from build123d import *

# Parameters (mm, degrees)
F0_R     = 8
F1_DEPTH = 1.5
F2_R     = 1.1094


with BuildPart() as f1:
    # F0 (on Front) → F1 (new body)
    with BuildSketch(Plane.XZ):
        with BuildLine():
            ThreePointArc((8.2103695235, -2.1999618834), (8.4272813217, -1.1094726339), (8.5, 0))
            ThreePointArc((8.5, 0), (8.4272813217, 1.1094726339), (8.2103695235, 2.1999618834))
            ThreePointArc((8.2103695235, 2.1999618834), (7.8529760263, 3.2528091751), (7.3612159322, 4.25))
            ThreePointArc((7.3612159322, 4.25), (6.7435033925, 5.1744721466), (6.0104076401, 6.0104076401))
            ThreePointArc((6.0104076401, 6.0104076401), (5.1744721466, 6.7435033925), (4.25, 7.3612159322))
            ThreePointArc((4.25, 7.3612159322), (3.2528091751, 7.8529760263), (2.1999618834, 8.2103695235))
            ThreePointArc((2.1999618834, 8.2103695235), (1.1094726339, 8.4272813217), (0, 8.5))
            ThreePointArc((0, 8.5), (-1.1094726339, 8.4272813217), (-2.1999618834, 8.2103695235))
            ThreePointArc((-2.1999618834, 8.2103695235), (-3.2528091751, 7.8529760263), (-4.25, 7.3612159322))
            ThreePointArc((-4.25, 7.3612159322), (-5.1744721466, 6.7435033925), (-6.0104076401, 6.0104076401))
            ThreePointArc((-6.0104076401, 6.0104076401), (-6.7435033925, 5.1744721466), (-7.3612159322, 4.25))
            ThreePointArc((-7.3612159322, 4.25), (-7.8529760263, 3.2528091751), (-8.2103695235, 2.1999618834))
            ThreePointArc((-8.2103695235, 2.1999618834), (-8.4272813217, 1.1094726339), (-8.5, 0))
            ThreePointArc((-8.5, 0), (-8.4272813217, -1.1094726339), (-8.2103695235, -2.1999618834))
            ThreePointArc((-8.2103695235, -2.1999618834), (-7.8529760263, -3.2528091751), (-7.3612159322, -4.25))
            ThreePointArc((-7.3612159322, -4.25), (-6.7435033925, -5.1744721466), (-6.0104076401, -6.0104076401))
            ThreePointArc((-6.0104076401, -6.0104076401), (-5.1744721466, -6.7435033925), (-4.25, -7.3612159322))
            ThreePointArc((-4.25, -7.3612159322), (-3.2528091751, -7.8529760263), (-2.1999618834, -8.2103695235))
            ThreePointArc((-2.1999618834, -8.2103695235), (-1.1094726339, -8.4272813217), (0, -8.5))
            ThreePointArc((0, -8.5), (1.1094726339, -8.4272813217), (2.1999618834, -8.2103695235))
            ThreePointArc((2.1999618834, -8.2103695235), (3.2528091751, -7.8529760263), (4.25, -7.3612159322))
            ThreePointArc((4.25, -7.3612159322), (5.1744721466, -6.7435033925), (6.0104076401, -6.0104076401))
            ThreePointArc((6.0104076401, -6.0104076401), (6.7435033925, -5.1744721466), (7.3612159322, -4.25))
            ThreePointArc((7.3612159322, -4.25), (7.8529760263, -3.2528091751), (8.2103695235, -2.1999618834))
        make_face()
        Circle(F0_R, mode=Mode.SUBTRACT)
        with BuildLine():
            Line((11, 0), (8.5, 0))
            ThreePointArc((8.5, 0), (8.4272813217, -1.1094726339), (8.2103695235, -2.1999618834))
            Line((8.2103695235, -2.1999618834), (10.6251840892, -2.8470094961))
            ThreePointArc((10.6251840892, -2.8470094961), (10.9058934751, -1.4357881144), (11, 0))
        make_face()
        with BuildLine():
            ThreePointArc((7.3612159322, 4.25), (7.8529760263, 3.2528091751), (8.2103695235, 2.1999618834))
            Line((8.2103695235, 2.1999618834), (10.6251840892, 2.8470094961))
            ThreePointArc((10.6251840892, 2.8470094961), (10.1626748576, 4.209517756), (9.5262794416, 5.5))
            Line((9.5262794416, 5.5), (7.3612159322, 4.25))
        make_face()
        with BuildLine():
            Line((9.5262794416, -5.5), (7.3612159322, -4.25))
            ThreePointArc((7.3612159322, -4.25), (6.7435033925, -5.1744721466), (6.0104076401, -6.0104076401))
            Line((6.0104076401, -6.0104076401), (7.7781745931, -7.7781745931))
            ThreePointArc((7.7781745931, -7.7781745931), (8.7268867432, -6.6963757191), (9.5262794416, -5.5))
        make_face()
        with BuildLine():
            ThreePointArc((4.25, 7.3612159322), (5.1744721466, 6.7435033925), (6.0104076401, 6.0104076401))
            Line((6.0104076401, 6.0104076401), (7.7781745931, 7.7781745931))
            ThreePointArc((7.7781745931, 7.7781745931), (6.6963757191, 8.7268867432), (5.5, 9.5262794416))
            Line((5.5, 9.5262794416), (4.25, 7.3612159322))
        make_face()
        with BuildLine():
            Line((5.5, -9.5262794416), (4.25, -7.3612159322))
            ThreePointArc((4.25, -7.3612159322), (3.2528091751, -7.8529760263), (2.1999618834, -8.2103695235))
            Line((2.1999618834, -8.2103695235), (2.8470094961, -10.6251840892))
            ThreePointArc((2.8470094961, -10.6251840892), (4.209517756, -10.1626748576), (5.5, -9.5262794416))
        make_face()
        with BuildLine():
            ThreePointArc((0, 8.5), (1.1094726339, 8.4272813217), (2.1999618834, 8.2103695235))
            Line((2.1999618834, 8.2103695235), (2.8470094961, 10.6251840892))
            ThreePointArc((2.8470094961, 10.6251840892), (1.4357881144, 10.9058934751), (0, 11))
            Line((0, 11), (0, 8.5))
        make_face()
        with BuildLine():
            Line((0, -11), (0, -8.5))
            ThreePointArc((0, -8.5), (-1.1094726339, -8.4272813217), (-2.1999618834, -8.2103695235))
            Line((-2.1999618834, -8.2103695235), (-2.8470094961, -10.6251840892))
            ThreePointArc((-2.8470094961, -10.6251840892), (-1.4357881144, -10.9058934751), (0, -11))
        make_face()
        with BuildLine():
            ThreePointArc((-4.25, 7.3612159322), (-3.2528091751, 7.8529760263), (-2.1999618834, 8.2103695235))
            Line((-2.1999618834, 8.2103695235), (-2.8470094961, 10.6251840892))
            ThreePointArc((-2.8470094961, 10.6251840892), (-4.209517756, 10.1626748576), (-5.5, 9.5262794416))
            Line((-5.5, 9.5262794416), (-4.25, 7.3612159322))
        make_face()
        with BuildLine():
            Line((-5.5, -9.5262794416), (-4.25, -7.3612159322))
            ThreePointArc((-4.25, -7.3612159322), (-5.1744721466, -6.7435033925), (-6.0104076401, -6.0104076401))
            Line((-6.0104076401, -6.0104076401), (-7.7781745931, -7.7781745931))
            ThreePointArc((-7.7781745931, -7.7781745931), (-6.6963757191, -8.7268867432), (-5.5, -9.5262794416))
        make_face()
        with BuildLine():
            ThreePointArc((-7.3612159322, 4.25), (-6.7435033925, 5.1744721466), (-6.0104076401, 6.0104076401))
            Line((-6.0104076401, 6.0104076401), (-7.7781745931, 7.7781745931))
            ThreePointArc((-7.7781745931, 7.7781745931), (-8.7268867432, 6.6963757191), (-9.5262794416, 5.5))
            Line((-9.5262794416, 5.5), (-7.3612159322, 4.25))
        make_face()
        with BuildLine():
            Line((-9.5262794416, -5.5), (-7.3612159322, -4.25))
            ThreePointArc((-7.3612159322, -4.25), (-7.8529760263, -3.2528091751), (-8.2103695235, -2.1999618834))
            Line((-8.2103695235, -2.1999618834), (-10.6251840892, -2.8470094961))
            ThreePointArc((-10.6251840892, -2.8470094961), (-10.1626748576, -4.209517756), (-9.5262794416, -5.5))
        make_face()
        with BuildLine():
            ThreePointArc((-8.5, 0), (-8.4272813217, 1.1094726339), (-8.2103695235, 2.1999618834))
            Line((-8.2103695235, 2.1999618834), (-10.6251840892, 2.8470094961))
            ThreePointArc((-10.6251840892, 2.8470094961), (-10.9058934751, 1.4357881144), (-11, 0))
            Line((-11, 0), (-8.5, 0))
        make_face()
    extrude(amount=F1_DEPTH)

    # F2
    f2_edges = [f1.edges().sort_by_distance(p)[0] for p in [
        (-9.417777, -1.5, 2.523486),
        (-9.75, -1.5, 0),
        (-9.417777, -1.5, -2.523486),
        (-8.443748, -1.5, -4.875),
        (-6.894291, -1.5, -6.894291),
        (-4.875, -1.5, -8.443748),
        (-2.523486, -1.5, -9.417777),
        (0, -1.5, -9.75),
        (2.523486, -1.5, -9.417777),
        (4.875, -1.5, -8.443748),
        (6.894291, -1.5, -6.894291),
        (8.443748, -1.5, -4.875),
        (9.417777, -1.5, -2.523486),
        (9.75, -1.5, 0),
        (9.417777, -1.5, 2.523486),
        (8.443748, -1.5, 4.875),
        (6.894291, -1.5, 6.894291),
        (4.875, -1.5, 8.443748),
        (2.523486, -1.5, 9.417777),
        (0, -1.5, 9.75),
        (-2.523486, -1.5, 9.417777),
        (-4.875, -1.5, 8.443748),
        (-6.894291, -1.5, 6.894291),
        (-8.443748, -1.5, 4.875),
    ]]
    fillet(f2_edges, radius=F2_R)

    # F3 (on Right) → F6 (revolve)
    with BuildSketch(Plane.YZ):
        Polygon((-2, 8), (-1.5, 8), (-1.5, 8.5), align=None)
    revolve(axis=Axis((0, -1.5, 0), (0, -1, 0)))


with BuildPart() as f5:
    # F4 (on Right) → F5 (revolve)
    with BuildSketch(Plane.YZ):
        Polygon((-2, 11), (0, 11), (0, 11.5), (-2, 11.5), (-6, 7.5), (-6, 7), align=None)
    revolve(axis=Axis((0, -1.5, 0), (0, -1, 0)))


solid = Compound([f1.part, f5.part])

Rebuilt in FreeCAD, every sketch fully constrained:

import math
import FreeCAD as App
import Part
import Sketcher
from FreeCAD import Vector
Q = App.Units.Quantity


def edges_at(feature, points):
    """Names of the edges that pass closest to the given points."""
    edges = feature.Shape.Edges
    near = lambda p: min(range(len(edges)), key=lambda i: edges[i].distToShape(Part.Vertex(*p))[0])
    return sorted({f"Edge{near(p) + 1}" for p in points})


def add_polygon(sketch, points):
    """Adds a closed chain of lines whose ends are joined by coincident constraints."""
    first, n = sketch.GeometryCount, len(points)
    for a, b in zip(points, points[1:] + points[:1]):
        sketch.addGeometry(Part.LineSegment(App.Vector(*a, 0), App.Vector(*b, 0)), False)
    for i in range(n):
        sketch.addConstraint(Sketcher.Constraint("Coincident", first + i, 2, first + (i + 1) % n, 1))

doc = App.newDocument("Part")
body = doc.addObject("PartDesign::Body", "Body")

# Sketch on XZ plane
sketch1 = body.newObject("Sketcher::SketchObject", "Sketch")
sketch1.AttachmentSupport = (doc.getObject("XZ_Plane"), [""])
sketch1.MapMode = "FlatFace"
sketch1.addGeometry([
    Part.ArcOfCircle(Part.Circle(Vector(0, 0, 0), Vector(0, 0, 1), 8.5), math.radians(-30), math.radians(-15)),  # 0
    Part.LineSegment(Vector(8.21037, -2.199962, 0), Vector(10.625184, -2.847009, 0)),  # 1
    Part.ArcOfCircle(Part.Circle(Vector(0, 0, 0), Vector(0, 0, 1), 11), math.radians(-15), math.radians(0)),  # 2
    Part.LineSegment(Vector(11, 0, 0), Vector(8.5, 0, 0)),  # 3
    Part.ArcOfCircle(Part.Circle(Vector(0, 0, 0), Vector(0, 0, 1), 8.5), math.radians(0), math.radians(15)),  # 4
    Part.LineSegment(Vector(8.21037, 2.199962, 0), Vector(10.625184, 2.847009, 0)),  # 5
    Part.ArcOfCircle(Part.Circle(Vector(0, 0, 0), Vector(0, 0, 1), 11), math.radians(15), math.radians(30)),  # 6
    Part.LineSegment(Vector(9.526279, 5.5, 0), Vector(7.361216, 4.25, 0)),  # 7
    Part.ArcOfCircle(Part.Circle(Vector(0, 0, 0), Vector(0, 0, 1), 8.5), math.radians(30), math.radians(45)),  # 8
    Part.LineSegment(Vector(6.010408, 6.010408, 0), Vector(7.778175, 7.778175, 0)),  # 9
    Part.ArcOfCircle(Part.Circle(Vector(0, 0, 0), Vector(0, 0, 1), 11), math.radians(45), math.radians(60)),  # 10
    Part.LineSegment(Vector(5.5, 9.526279, 0), Vector(4.25, 7.361216, 0)),  # 11
    Part.ArcOfCircle(Part.Circle(Vector(0, 0, 0), Vector(0, 0, 1), 8.5), math.radians(60), math.radians(75)),  # 12
    Part.LineSegment(Vector(2.199962, 8.21037, 0), Vector(2.847009, 10.625184, 0)),  # 13
    Part.ArcOfCircle(Part.Circle(Vector(0, 0, 0), Vector(0, 0, 1), 11), math.radians(75), math.radians(90)),  # 14
    Part.LineSegment(Vector(0, 11, 0), Vector(0, 8.5, 0)),  # 15
    Part.ArcOfCircle(Part.Circle(Vector(0, 0, 0), Vector(0, 0, 1), 8.5), math.radians(90), math.radians(105)),  # 16
    Part.LineSegment(Vector(-2.199962, 8.21037, 0), Vector(-2.847009, 10.625184, 0)),  # 17
    Part.ArcOfCircle(Part.Circle(Vector(0, 0, 0), Vector(0, 0, 1), 11), math.radians(105), math.radians(120)),  # 18
    Part.LineSegment(Vector(-5.5, 9.526279, 0), Vector(-4.25, 7.361216, 0)),  # 19
    Part.ArcOfCircle(Part.Circle(Vector(0, 0, 0), Vector(0, 0, 1), 8.5), math.radians(120), math.radians(135)),  # 20
    Part.LineSegment(Vector(-6.010408, 6.010408, 0), Vector(-7.778175, 7.778175, 0)),  # 21
    Part.ArcOfCircle(Part.Circle(Vector(0, 0, 0), Vector(0, 0, 1), 11), math.radians(135), math.radians(150)),  # 22
    Part.LineSegment(Vector(-9.526279, 5.5, 0), Vector(-7.361216, 4.25, 0)),  # 23
    Part.ArcOfCircle(Part.Circle(Vector(0, 0, 0), Vector(0, 0, 1), 8.5), math.radians(150), math.radians(165)),  # 24
    Part.LineSegment(Vector(-8.21037, 2.199962, 0), Vector(-10.625184, 2.847009, 0)),  # 25
    Part.ArcOfCircle(Part.Circle(Vector(0, 0, 0), Vector(0, 0, 1), 11), math.radians(165), math.radians(180)),  # 26
    Part.LineSegment(Vector(-11, 0, 0), Vector(-8.5, 0, 0)),  # 27
    Part.ArcOfCircle(Part.Circle(Vector(0, 0, 0), Vector(0, 0, 1), 8.5), math.radians(180), math.radians(195)),  # 28
    Part.LineSegment(Vector(-8.21037, -2.199962, 0), Vector(-10.625184, -2.847009, 0)),  # 29
    Part.ArcOfCircle(Part.Circle(Vector(0, 0, 0), Vector(0, 0, 1), 11), math.radians(-165), math.radians(-150)),  # 30
    Part.LineSegment(Vector(-9.526279, -5.5, 0), Vector(-7.361216, -4.25, 0)),  # 31
    Part.ArcOfCircle(Part.Circle(Vector(0, 0, 0), Vector(0, 0, 1), 8.5), math.radians(-150), math.radians(-135)),  # 32
    Part.LineSegment(Vector(-6.010408, -6.010408, 0), Vector(-7.778175, -7.778175, 0)),  # 33
    Part.ArcOfCircle(Part.Circle(Vector(0, 0, 0), Vector(0, 0, 1), 11), math.radians(-135), math.radians(-120)),  # 34
    Part.LineSegment(Vector(-5.5, -9.526279, 0), Vector(-4.25, -7.361216, 0)),  # 35
    Part.ArcOfCircle(Part.Circle(Vector(0, 0, 0), Vector(0, 0, 1), 8.5), math.radians(-120), math.radians(-105)),  # 36
    Part.LineSegment(Vector(-2.199962, -8.21037, 0), Vector(-2.847009, -10.625184, 0)),  # 37
    Part.ArcOfCircle(Part.Circle(Vector(0, 0, 0), Vector(0, 0, 1), 11), math.radians(-105), math.radians(-90)),  # 38
    Part.LineSegment(Vector(0, -11, 0), Vector(0, -8.5, 0)),  # 39
    Part.ArcOfCircle(Part.Circle(Vector(0, 0, 0), Vector(0, 0, 1), 8.5), math.radians(-90), math.radians(-75)),  # 40
    Part.LineSegment(Vector(2.199962, -8.21037, 0), Vector(2.847009, -10.625184, 0)),  # 41
    Part.ArcOfCircle(Part.Circle(Vector(0, 0, 0), Vector(0, 0, 1), 11), math.radians(-75), math.radians(-60)),  # 42
    Part.LineSegment(Vector(5.5, -9.526279, 0), Vector(4.25, -7.361216, 0)),  # 43
    Part.ArcOfCircle(Part.Circle(Vector(0, 0, 0), Vector(0, 0, 1), 8.5), math.radians(-60), math.radians(-45)),  # 44
    Part.LineSegment(Vector(6.010408, -6.010408, 0), Vector(7.778175, -7.778175, 0)),  # 45
    Part.ArcOfCircle(Part.Circle(Vector(0, 0, 0), Vector(0, 0, 1), 11), math.radians(-45), math.radians(-30)),  # 46
    Part.LineSegment(Vector(9.526279, -5.5, 0), Vector(7.361216, -4.25, 0)),  # 47
    Part.Circle(Vector(0, 0, 0), Vector(0, 0, 1), 8),  # 48
], False)
sketch1.addConstraint([
    Sketcher.Constraint("Coincident", 0, 2, 1, 1),
    Sketcher.Constraint("Coincident", 1, 2, 2, 1),
    Sketcher.Constraint("Coincident", 2, 2, 3, 1),
    Sketcher.Constraint("Coincident", 3, 2, 4, 1),
    Sketcher.Constraint("Coincident", 4, 2, 5, 1),
    Sketcher.Constraint("Coincident", 5, 2, 6, 1),
    Sketcher.Constraint("Coincident", 6, 2, 7, 1),
    Sketcher.Constraint("Coincident", 7, 2, 8, 1),
    Sketcher.Constraint("Coincident", 8, 2, 9, 1),
    Sketcher.Constraint("Coincident", 9, 2, 10, 1),
    Sketcher.Constraint("Coincident", 10, 2, 11, 1),
    Sketcher.Constraint("Coincident", 11, 2, 12, 1),
    Sketcher.Constraint("Coincident", 12, 2, 13, 1),
    Sketcher.Constraint("Coincident", 13, 2, 14, 1),
    Sketcher.Constraint("Coincident", 14, 2, 15, 1),
    Sketcher.Constraint("Coincident", 15, 2, 16, 1),
    Sketcher.Constraint("Coincident", 16, 2, 17, 1),
    Sketcher.Constraint("Coincident", 17, 2, 18, 1),
    Sketcher.Constraint("Coincident", 18, 2, 19, 1),
    Sketcher.Constraint("Coincident", 19, 2, 20, 1),
    Sketcher.Constraint("Coincident", 20, 2, 21, 1),
    Sketcher.Constraint("Coincident", 21, 2, 22, 1),
    Sketcher.Constraint("Coincident", 22, 2, 23, 1),
    Sketcher.Constraint("Coincident", 23, 2, 24, 1),
    Sketcher.Constraint("Coincident", 24, 2, 25, 1),
    Sketcher.Constraint("Coincident", 25, 2, 26, 1),
    Sketcher.Constraint("Coincident", 26, 2, 27, 1),
    Sketcher.Constraint("Coincident", 27, 2, 28, 1),
    Sketcher.Constraint("Coincident", 28, 2, 29, 1),
    Sketcher.Constraint("Coincident", 29, 2, 30, 1),
    Sketcher.Constraint("Coincident", 30, 2, 31, 1),
    Sketcher.Constraint("Coincident", 31, 2, 32, 1),
    Sketcher.Constraint("Coincident", 32, 2, 33, 1),
    Sketcher.Constraint("Coincident", 33, 2, 34, 1),
    Sketcher.Constraint("Coincident", 34, 2, 35, 1),
    Sketcher.Constraint("Coincident", 35, 2, 36, 1),
    Sketcher.Constraint("Coincident", 36, 2, 37, 1),
    Sketcher.Constraint("Coincident", 37, 2, 38, 1),
    Sketcher.Constraint("Coincident", 38, 2, 39, 1),
    Sketcher.Constraint("Coincident", 39, 2, 40, 1),
    Sketcher.Constraint("Coincident", 40, 2, 41, 1),
    Sketcher.Constraint("Coincident", 41, 2, 42, 1),
    Sketcher.Constraint("Coincident", 42, 2, 43, 1),
    Sketcher.Constraint("Coincident", 43, 2, 44, 1),
    Sketcher.Constraint("Coincident", 44, 2, 45, 1),
    Sketcher.Constraint("Coincident", 45, 2, 46, 1),
    Sketcher.Constraint("Coincident", 46, 2, 47, 1),
    Sketcher.Constraint("Coincident", 47, 2, 0, 1),
    Sketcher.Constraint("Horizontal", 3),
    Sketcher.Constraint("Vertical", 15),
    Sketcher.Constraint("Horizontal", 27),
    Sketcher.Constraint("Vertical", 39),
    Sketcher.Constraint("Coincident", 0, 3, -1, 1),
    Sketcher.Constraint("Coincident", 2, 3, -1, 1),
    Sketcher.Constraint("Coincident", 4, 3, -1, 1),
    Sketcher.Constraint("Coincident", 6, 3, -1, 1),
    Sketcher.Constraint("Coincident", 8, 3, -1, 1),
    Sketcher.Constraint("Coincident", 10, 3, -1, 1),
    Sketcher.Constraint("Coincident", 12, 3, -1, 1),
    Sketcher.Constraint("Coincident", 14, 3, -1, 1),
    Sketcher.Constraint("Coincident", 16, 3, -1, 1),
    Sketcher.Constraint("Coincident", 18, 3, -1, 1),
    Sketcher.Constraint("Coincident", 20, 3, -1, 1),
    Sketcher.Constraint("Coincident", 22, 3, -1, 1),
    Sketcher.Constraint("Coincident", 24, 3, -1, 1),
    Sketcher.Constraint("Coincident", 26, 3, -1, 1),
    Sketcher.Constraint("Coincident", 28, 3, -1, 1),
    Sketcher.Constraint("Coincident", 30, 3, -1, 1),
    Sketcher.Constraint("Coincident", 32, 3, -1, 1),
    Sketcher.Constraint("Coincident", 34, 3, -1, 1),
    Sketcher.Constraint("Coincident", 36, 3, -1, 1),
    Sketcher.Constraint("Coincident", 38, 3, -1, 1),
    Sketcher.Constraint("Coincident", 40, 3, -1, 1),
    Sketcher.Constraint("Coincident", 42, 3, -1, 1),
    Sketcher.Constraint("Coincident", 44, 3, -1, 1),
    Sketcher.Constraint("Coincident", 46, 3, -1, 1),
    Sketcher.Constraint("Coincident", 48, 3, -1, 1),
    Sketcher.Constraint("Equal", 0, 4),
    Sketcher.Constraint("Equal", 2, 6),
    Sketcher.Constraint("Equal", 4, 8),
    Sketcher.Constraint("Equal", 6, 10),
    Sketcher.Constraint("Equal", 8, 12),
    Sketcher.Constraint("Equal", 10, 14),
    Sketcher.Constraint("Equal", 12, 16),
    Sketcher.Constraint("Equal", 14, 18),
    Sketcher.Constraint("Equal", 16, 20),
    Sketcher.Constraint("Equal", 18, 22),
    Sketcher.Constraint("Equal", 20, 24),
    Sketcher.Constraint("Equal", 22, 26),
    Sketcher.Constraint("Equal", 24, 28),
    Sketcher.Constraint("Equal", 26, 30),
    Sketcher.Constraint("Equal", 28, 32),
    Sketcher.Constraint("Equal", 30, 34),
    Sketcher.Constraint("Equal", 32, 36),
    Sketcher.Constraint("Equal", 34, 38),
    Sketcher.Constraint("Equal", 36, 40),
    Sketcher.Constraint("Equal", 38, 42),
    Sketcher.Constraint("Equal", 40, 44),
    Sketcher.Constraint("Equal", 42, 46),
    Sketcher.Constraint("PointOnObject", 2, 2, -1),
    Sketcher.Constraint("PointOnObject", 14, 2, -2),
    Sketcher.Constraint("PointOnObject", 26, 2, -1),
    Sketcher.Constraint("PointOnObject", 38, 2, -2),
    Sketcher.Constraint("Perpendicular", 1, 13),
    Sketcher.Constraint("Perpendicular", 5, 17),
    Sketcher.Constraint("Perpendicular", 7, 19),
    Sketcher.Constraint("Perpendicular", 9, 21),
    Sketcher.Constraint("Perpendicular", 11, 23),
    Sketcher.Constraint("Perpendicular", 13, 25),
    Sketcher.Constraint("Perpendicular", 17, 29),
    Sketcher.Constraint("Perpendicular", 19, 31),
    Sketcher.Constraint("Perpendicular", 21, 33),
    Sketcher.Constraint("Perpendicular", 23, 35),
    Sketcher.Constraint("Perpendicular", 25, 37),
    Sketcher.Constraint("Perpendicular", 29, 41),
    Sketcher.Constraint("Perpendicular", 31, 43),
    Sketcher.Constraint("Perpendicular", 33, 45),
    Sketcher.Constraint("Perpendicular", 35, 47),
    Sketcher.Constraint("Horizontal", 12, 2, 16, 2),
    Sketcher.Constraint("Horizontal", 13, 2, 17, 2),
    Sketcher.Constraint("Horizontal", 10, 2, 18, 2),
    Sketcher.Constraint("Horizontal", 11, 2, 19, 2),
    Sketcher.Constraint("Horizontal", 8, 2, 20, 2),
    Sketcher.Constraint("Horizontal", 9, 2, 21, 2),
    Sketcher.Constraint("Horizontal", 6, 2, 22, 2),
    Sketcher.Constraint("Horizontal", 4, 2, 24, 2),
    Sketcher.Constraint("Horizontal", 0, 2, 28, 2),
    Sketcher.Constraint("Horizontal", 36, 2, 40, 2),
    Sketcher.Constraint("Horizontal", 34, 2, 42, 2),
    Sketcher.Constraint("Horizontal", 32, 2, 44, 2),
    Sketcher.Constraint("Horizontal", 30, 2, 46, 2),
    Sketcher.Constraint("Vertical", 0, 2, 4, 2),
    Sketcher.Constraint("Vertical", 22, 2, 30, 2),
    Sketcher.Constraint("Vertical", 20, 2, 32, 2),
    Sketcher.Constraint("Vertical", 18, 2, 34, 2),
    Sketcher.Constraint("Vertical", 16, 2, 36, 2),
    Sketcher.Constraint("Diameter", 48, Q("16 mm")),
    Sketcher.Constraint("Radius", 2, Q("11 mm")),
    Sketcher.Constraint("Radius", 0, Q("8.5 mm")),
    Sketcher.Constraint("Angle", 1, Q("-15 deg")),
    Sketcher.Constraint("Angle", 7, Q("-150 deg")),
    Sketcher.Constraint("DistanceY", -1, 1, 6, 2, Q("5.5 mm")),
    Sketcher.Constraint("DistanceX", -1, 1, 10, 2, Q("5.5 mm")),
    Sketcher.Constraint("DistanceX", -1, 1, 0, 2, Q("8.21037 mm")),
    Sketcher.Constraint("DistanceX", -1, 1, 12, 2, Q("2.199962 mm")),
    Sketcher.Constraint("DistanceX", -1, 1, 8, 2, Q("6.010408 mm")),
])
pad1 = body.newObject("PartDesign::Pad", "Pad")
pad1.Profile = sketch1
pad1.Length = 1.5
doc.recompute()

fillet = body.newObject("PartDesign::Fillet", "Fillet")
fillet.Base = (pad1, edges_at(pad1, [
    (-9.418, -1.5, 2.523),
    (-9.75, -1.5, 0),
    (-9.418, -1.5, -2.523),
    (-8.444, -1.5, -4.875),
    (-6.894, -1.5, -6.894),
    (-4.875, -1.5, -8.444),
    (-2.523, -1.5, -9.418),
    (0, -1.5, -9.75),
    (2.523, -1.5, -9.418),
    (4.875, -1.5, -8.444),
    (6.894, -1.5, -6.894),
    (8.444, -1.5, -4.875),
    (9.418, -1.5, -2.523),
    (9.75, -1.5, 0),
    (9.418, -1.5, 2.523),
    (8.444, -1.5, 4.875),
    (6.894, -1.5, 6.894),
    (4.875, -1.5, 8.444),
    (2.523, -1.5, 9.418),
    (0, -1.5, 9.75),
    (-2.523, -1.5, 9.418),
    (-4.875, -1.5, 8.444),
    (-6.894, -1.5, 6.894),
    (-8.444, -1.5, 4.875),
]))
fillet.Radius = 1.1094

# Sketch on YZ plane
sketch2 = body.newObject("Sketcher::SketchObject", "Sketch001")
sketch2.AttachmentSupport = (doc.getObject("YZ_Plane"), [""])
sketch2.MapMode = "FlatFace"
add_polygon(sketch2, [(-2, 8), (-1.5, 8), (-1.5, 8.5)])  # lines 0-2
sketch2.addConstraint([
    Sketcher.Constraint("Horizontal", 0),
    Sketcher.Constraint("Vertical", 1),
    Sketcher.Constraint("Equal", 0, 1),
    Sketcher.Constraint("DistanceX", 0, 1, 0, 2, Q("0.5 mm")),
    Sketcher.Constraint("DistanceY", -1, 1, 0, 2, Q("8 mm")),
    Sketcher.Constraint("DistanceX", 2, 2, -1, 1, Q("2 mm")),
])
revolution = body.newObject("PartDesign::Revolution", "Revolution")
revolution.Profile = sketch2
revolution.ReferenceAxis = (sketch2, ["H_Axis"])
revolution.Angle = 360
body2 = doc.addObject("PartDesign::Body", "Body001")

# Sketch on YZ plane
sketch3 = body2.newObject("Sketcher::SketchObject", "Sketch002")
sketch3.AttachmentSupport = (doc.getObject("YZ_Plane001"), [""])
sketch3.MapMode = "FlatFace"
add_polygon(sketch3, [(-2, 11), (0, 11), (0, 11.5), (-2, 11.5), (-6, 7.5), (-6, 7)])  # lines 0-5
sketch3.addConstraint([
    Sketcher.Constraint("Horizontal", 0),
    Sketcher.Constraint("Vertical", 1),
    Sketcher.Constraint("Horizontal", 2),
    Sketcher.Constraint("Vertical", 4),
    Sketcher.Constraint("PointOnObject", 0, 2, -2),
    Sketcher.Constraint("Parallel", 3, 5),
    Sketcher.Constraint("Vertical", 2, 2, 5, 2),
    Sketcher.Constraint("DistanceX", 0, 1, 0, 2, Q("2 mm")),
    Sketcher.Constraint("Angle", 3, Q("-135 deg")),
    Sketcher.Constraint("DistanceY", 1, 1, 1, 2, Q("0.5 mm")),
    Sketcher.Constraint("DistanceY", -1, 1, 0, 2, Q("11 mm")),
    Sketcher.Constraint("DistanceX", 3, 2, -1, 1, Q("6 mm")),
])
revolution2 = body2.newObject("PartDesign::Revolution", "Revolution001")
revolution2.Profile = sketch3
revolution2.ReferenceAxis = (sketch3, ["H_Axis"])
revolution2.Angle = 360

doc.recompute()
